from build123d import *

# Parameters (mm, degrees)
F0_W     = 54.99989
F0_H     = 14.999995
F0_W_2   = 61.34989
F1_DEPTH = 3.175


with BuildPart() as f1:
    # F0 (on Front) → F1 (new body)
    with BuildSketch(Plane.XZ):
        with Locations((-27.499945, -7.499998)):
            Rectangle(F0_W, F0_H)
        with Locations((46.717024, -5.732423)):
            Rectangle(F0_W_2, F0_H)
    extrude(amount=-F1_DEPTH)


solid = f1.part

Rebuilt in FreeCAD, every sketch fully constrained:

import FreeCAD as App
import Part
import Sketcher
Q = App.Units.Quantity

doc = App.newDocument("Part")
body = doc.addObject("PartDesign::Body", "Body")
body.AllowCompound = True

# Sketch on XZ plane
sketch1 = body.newObject("Sketcher::SketchObject", "Sketch")
sketch1.AttachmentSupport = (doc.getObject("XZ_Plane"), [""])
sketch1.MapMode = "FlatFace"
sketch1.addGeometry([
    Part.LineSegment(App.Vector(-55, 0, 0), App.Vector(-55, -15, 0)),  # 0
    Part.LineSegment(App.Vector(-55, -15, 0), App.Vector(0, -15, 0)),  # 1
    Part.LineSegment(App.Vector(0, -15, 0), App.Vector(0, 0, 0)),  # 2
    Part.LineSegment(App.Vector(0, 0, 0), App.Vector(-55, 0, 0)),  # 3
    Part.LineSegment(App.Vector(16, 2, 0), App.Vector(16, -13, 0)),  # 4
    Part.LineSegment(App.Vector(16, -13, 0), App.Vector(77, -13, 0)),  # 5
    Part.LineSegment(App.Vector(77, -13, 0), App.Vector(77, 2, 0)),  # 6
    Part.LineSegment(App.Vector(77, 2, 0), App.Vector(16, 2, 0)),  # 7
], False)
sketch1.addConstraint([
    Sketcher.Constraint("Coincident", 0, 2, 1, 1),
    Sketcher.Constraint("Coincident", 1, 2, 2, 1),
    Sketcher.Constraint("Coincident", 2, 2, 3, 1),
    Sketcher.Constraint("Coincident", 3, 2, 0, 1),
    Sketcher.Constraint("Coincident", 4, 2, 5, 1),
    Sketcher.Constraint("Coincident", 5, 2, 6, 1),
    Sketcher.Constraint("Coincident", 6, 2, 7, 1),
    Sketcher.Constraint("Coincident", 7, 2, 4, 1),
    Sketcher.Constraint("Vertical", 0),
    Sketcher.Constraint("Horizontal", 1),
    Sketcher.Constraint("Vertical", 2),
    Sketcher.Constraint("Horizontal", 3),
    Sketcher.Constraint("Vertical", 4),
    Sketcher.Constraint("Horizontal", 5),
    Sketcher.Constraint("Vertical", 6),
    Sketcher.Constraint("Horizontal", 7),
    Sketcher.Constraint("Coincident", 2, 2, -1, 1),
    Sketcher.Constraint("Equal", 2, 4),
    Sketcher.Constraint("DistanceX", 1, 1, 1, 2, Q("54.99989 mm")),
    Sketcher.Constraint("DistanceX", 5, 1, 5, 2, Q("61.34989 mm")),
    Sketcher.Constraint("DistanceY", 0, 2, 0, 1, Q("14.999995 mm")),
    Sketcher.Constraint("DistanceX", -1, 1, 4, 2, Q("16.042079 mm")),
    Sketcher.Constraint("DistanceY", 4, 2, -1, 1, Q("13.23242 mm")),
])
pad1 = body.newObject("PartDesign::Pad", "Pad")
pad1.Profile = sketch1
pad1.Length = Q("0.125 in")
pad1.Reversed = True

doc.recompute()
